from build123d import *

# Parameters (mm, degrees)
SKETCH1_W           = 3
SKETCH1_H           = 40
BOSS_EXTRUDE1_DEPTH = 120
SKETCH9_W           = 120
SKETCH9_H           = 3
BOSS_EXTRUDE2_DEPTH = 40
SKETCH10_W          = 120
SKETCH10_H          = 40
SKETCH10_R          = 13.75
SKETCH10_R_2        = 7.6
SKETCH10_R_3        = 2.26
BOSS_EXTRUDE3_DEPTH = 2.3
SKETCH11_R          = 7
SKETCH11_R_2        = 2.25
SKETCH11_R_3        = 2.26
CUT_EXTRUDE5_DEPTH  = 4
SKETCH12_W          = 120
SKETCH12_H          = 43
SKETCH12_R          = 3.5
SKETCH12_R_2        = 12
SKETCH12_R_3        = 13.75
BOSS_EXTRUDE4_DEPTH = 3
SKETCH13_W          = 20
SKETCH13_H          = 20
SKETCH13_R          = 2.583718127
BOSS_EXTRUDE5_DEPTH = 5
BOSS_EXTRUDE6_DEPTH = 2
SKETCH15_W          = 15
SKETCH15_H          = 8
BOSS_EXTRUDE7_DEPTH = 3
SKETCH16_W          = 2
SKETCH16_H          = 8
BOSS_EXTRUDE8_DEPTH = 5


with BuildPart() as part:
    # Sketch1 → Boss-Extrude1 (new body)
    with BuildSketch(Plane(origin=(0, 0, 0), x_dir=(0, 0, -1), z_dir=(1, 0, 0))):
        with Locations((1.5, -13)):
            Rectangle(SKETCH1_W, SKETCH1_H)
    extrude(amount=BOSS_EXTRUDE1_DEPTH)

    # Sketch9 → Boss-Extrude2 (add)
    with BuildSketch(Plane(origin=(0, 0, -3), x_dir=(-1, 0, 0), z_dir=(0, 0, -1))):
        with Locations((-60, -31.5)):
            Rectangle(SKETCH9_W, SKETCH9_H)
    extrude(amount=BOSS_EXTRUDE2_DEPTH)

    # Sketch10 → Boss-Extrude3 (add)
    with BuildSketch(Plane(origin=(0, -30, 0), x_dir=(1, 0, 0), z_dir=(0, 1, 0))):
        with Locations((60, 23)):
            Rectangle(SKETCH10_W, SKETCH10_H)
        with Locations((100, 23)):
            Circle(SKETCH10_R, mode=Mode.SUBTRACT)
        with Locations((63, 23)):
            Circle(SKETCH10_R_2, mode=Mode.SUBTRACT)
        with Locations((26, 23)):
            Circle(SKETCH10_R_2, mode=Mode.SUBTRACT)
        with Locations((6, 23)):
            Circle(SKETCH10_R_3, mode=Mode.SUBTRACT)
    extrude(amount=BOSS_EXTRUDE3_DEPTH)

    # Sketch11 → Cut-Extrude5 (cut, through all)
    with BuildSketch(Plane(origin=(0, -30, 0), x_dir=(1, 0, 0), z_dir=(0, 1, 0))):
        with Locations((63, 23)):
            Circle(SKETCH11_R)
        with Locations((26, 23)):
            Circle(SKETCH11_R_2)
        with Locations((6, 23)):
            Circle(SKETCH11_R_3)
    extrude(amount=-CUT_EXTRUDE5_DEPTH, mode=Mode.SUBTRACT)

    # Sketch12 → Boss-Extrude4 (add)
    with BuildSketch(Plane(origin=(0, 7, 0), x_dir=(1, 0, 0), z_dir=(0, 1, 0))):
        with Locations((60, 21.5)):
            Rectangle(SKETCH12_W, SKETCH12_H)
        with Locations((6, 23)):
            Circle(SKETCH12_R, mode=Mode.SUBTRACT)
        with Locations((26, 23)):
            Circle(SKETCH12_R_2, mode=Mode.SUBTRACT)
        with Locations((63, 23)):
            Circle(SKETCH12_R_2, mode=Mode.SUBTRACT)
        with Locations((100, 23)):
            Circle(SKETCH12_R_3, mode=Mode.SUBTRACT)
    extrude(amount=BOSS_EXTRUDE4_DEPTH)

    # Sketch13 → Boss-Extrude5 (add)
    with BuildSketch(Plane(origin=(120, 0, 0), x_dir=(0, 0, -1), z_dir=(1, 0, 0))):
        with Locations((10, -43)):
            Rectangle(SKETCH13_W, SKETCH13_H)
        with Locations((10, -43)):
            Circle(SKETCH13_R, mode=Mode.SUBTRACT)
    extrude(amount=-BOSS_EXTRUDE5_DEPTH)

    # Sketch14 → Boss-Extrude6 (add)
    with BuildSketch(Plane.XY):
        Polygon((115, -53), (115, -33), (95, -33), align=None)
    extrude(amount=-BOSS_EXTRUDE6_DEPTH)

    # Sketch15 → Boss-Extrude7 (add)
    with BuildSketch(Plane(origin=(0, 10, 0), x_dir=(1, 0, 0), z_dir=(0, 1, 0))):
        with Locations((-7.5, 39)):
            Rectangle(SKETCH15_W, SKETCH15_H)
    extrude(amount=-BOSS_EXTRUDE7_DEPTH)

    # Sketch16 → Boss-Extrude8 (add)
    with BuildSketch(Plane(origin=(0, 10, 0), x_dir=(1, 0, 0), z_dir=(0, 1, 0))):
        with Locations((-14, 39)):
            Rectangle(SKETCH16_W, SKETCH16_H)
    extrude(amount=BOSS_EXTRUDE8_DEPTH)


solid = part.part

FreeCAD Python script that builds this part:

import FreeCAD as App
import Part
import Sketcher
Q = App.Units.Quantity


def add_polygon(sketch, points):
    """Adds a closed chain of lines whose ends are joined by coincident constraints."""
    first, n = sketch.GeometryCount, len(points)
    for a, b in zip(points, points[1:] + points[:1]):
        sketch.addGeometry(Part.LineSegment(App.Vector(*a, 0), App.Vector(*b, 0)), False)
    for i in range(n):
        sketch.addConstraint(Sketcher.Constraint("Coincident", first + i, 2, first + (i + 1) % n, 1))

doc = App.newDocument("Part")
body = doc.addObject("PartDesign::Body", "Body")

sketch1 = body.newObject("Sketcher::SketchObject", "Sketch")
sketch1.AttachmentSupport = (doc.getObject("YZ_Plane"), [""])
sketch1.MapMode = "FlatFace"
add_polygon(sketch1, [(7, 0), (-33, 0), (-33, -3), (7, -3)])
sketch1.addConstraint([
    Sketcher.Constraint("Horizontal", 0),
    Sketcher.Constraint("Vertical", 1),
    Sketcher.Constraint("Horizontal", 2),
    Sketcher.Constraint("Vertical", 3),
    Sketcher.Constraint("PointOnObject", 0, 2, -1),
    Sketcher.Constraint("DistanceX", 0, 2, 0, 1, Q("40 mm")),
    Sketcher.Constraint("DistanceY", 1, 2, 1, 1, Q("3 mm")),
    Sketcher.Constraint("DistanceX", 0, 2, -1, 1, Q("33 mm")),
])
pad1 = body.newObject("PartDesign::Pad", "Pad")
pad1.Profile = sketch1
pad1.Length = 120

sketch2 = body.newObject("Sketcher::SketchObject", "Sketch001")
sketch2.AttachmentSupport = (doc.getObject("XY_Plane"), [""])
sketch2.MapMode = "FlatFace"
sketch2.AttachmentOffset = App.Placement(App.Vector(0, 0, -3), App.Rotation())
add_polygon(sketch2, [(120, -30), (120, -33), (0, -33), (0, -30)])
sketch2.addConstraint([
    Sketcher.Constraint("Vertical", 0),
    Sketcher.Constraint("Horizontal", 1),
    Sketcher.Constraint("Vertical", 2),
    Sketcher.Constraint("Horizontal", 3),
    Sketcher.Constraint("PointOnObject", 1, 2, -2),
    Sketcher.Constraint("DistanceX", 1, 2, 1, 1, Q("120 mm")),
    Sketcher.Constraint("DistanceY", 0, 2, 0, 1, Q("3 mm")),
    Sketcher.Constraint("DistanceY", 0, 2, -1, 1, Q("33 mm")),
])
pad2 = body.newObject("PartDesign::Pad", "Pad001")
pad2.Profile = sketch2
pad2.Length = 40
pad2.Reversed = True

sketch3 = body.newObject("Sketcher::SketchObject", "Sketch002")
sketch3.AttachmentSupport = (doc.getObject("XZ_Plane"), [""])
sketch3.MapMode = "FlatFace"
sketch3.AttachmentOffset = App.Placement(App.Vector(0, 0, 30), App.Rotation())
add_polygon(sketch3, [(0, -43), (0, -3), (120, -3), (120, -43)])
sketch3.addGeometry(Part.Circle(App.Vector(6, -23, 0), App.Vector(0, 0, 1), 2.3), False)
sketch3.addGeometry(Part.Circle(App.Vector(26, -23, 0), App.Vector(0, 0, 1), 7.6), False)
sketch3.addGeometry(Part.Circle(App.Vector(63, -23, 0), App.Vector(0, 0, 1), 7.6), False)
sketch3.addGeometry(Part.Circle(App.Vector(100, -23, 0), App.Vector(0, 0, 1), 13.8), False)
sketch3.addConstraint([
    Sketcher.Constraint("Vertical", 0),
    Sketcher.Constraint("Horizontal", 1),
    Sketcher.Constraint("Vertical", 2),
    Sketcher.Constraint("Horizontal", 3),
    Sketcher.Constraint("Equal", 5, 6),
    Sketcher.Constraint("PointOnObject", 0, 2, -2),
    Sketcher.Constraint("Horizontal", 4, 3, 5, 3),
    Sketcher.Constraint("Horizontal", 5, 3, 6, 3),
    Sketcher.Constraint("Horizontal", 6, 3, 7, 3),
    Sketcher.Constraint("Diameter", 5, Q("15.2 mm")),
    Sketcher.Constraint("Diameter", 7, Q("27.5 mm")),
    Sketcher.Constraint("Diameter", 4, Q("4.52 mm")),
    Sketcher.Constraint("DistanceX", 1, 1, 1, 2, Q("120 mm")),
    Sketcher.Constraint("DistanceY", 0, 1, 0, 2, Q("40 mm")),
    Sketcher.Constraint("DistanceX", -1, 1, 4, 3, Q("6 mm")),
    Sketcher.Constraint("DistanceY", 4, 3, -1, 1, Q("23 mm")),
    Sketcher.Constraint("DistanceX", -1, 1, 5, 3, Q("26 mm")),
    Sketcher.Constraint("DistanceX", -1, 1, 6, 3, Q("63 mm")),
    Sketcher.Constraint("DistanceX", -1, 1, 7, 3, Q("100 mm")),
    Sketcher.Constraint("DistanceY", 0, 2, -1, 1, Q("3 mm")),
])
pad3 = body.newObject("PartDesign::Pad", "Pad002")
pad3.Profile = sketch3
pad3.Length = 2.3
pad3.Reversed = True

sketch4 = body.newObject("Sketcher::SketchObject", "Sketch003")
sketch4.AttachmentSupport = (doc.getObject("XZ_Plane"), [""])
sketch4.MapMode = "FlatFace"
sketch4.AttachmentOffset = App.Placement(App.Vector(0, 0, 30), App.Rotation())
sketch4.addGeometry([
    Part.Circle(App.Vector(63, -23, 0), App.Vector(0, 0, 1), 7),
    Part.Circle(App.Vector(26, -23, 0), App.Vector(0, 0, 1), 2.2),
    Part.Circle(App.Vector(6, -23, 0), App.Vector(0, 0, 1), 2.3),
], False)
sketch4.addConstraint([
    Sketcher.Constraint("Horizontal", 0, 3, 1, 3),
    Sketcher.Constraint("Horizontal", 1, 3, 2, 3),
    Sketcher.Constraint("Diameter", 0, Q("14 mm")),
    Sketcher.Constraint("Diameter", 1, Q("4.5 mm")),
    Sketcher.Constraint("Diameter", 2, Q("4.52 mm")),
    Sketcher.Constraint("DistanceX", -1, 1, 0, 3, Q("63 mm")),
    Sketcher.Constraint("DistanceY", 0, 3, -1, 1, Q("23 mm")),
    Sketcher.Constraint("DistanceX", -1, 1, 1, 3, Q("26 mm")),
    Sketcher.Constraint("DistanceX", -1, 1, 2, 3, Q("6 mm")),
])
pocket1 = body.newObject("PartDesign::Pocket", "Pocket")
pocket1.Profile = sketch4
pocket1.Type = "ThroughAll"
pocket1.Reversed = True

sketch5 = body.newObject("Sketcher::SketchObject", "Sketch004")
sketch5.AttachmentSupport = (doc.getObject("XZ_Plane"), [""])
sketch5.MapMode = "FlatFace"
sketch5.AttachmentOffset = App.Placement(App.Vector(0, 0, -7), App.Rotation())
add_polygon(sketch5, [(0, -43), (0, 0), (120, 0), (120, -43)])
sketch5.addGeometry(Part.Circle(App.Vector(6, -23, 0), App.Vector(0, 0, 1), 3.5), False)
sketch5.addGeometry(Part.Circle(App.Vector(26, -23, 0), App.Vector(0, 0, 1), 12), False)
sketch5.addGeometry(Part.Circle(App.Vector(63, -23, 0), App.Vector(0, 0, 1), 12), False)
sketch5.addGeometry(Part.Circle(App.Vector(100, -23, 0), App.Vector(0, 0, 1), 13.8), False)
sketch5.addConstraint([
    Sketcher.Constraint("Vertical", 0),
    Sketcher.Constraint("Horizontal", 1),
    Sketcher.Constraint("Vertical", 2),
    Sketcher.Constraint("Horizontal", 3),
    Sketcher.Constraint("Coincident", 0, 2, -1, 1),
    Sketcher.Constraint("Equal", 5, 6),
    Sketcher.Constraint("Horizontal", 4, 3, 5, 3),
    Sketcher.Constraint("Horizontal", 5, 3, 6, 3),
    Sketcher.Constraint("Horizontal", 6, 3, 7, 3),
    Sketcher.Constraint("Diameter", 4, Q("7 mm")),
    Sketcher.Constraint("Diameter", 5, Q("24 mm")),
    Sketcher.Constraint("Diameter", 7, Q("27.5 mm")),
    Sketcher.Constraint("DistanceX", 1, 1, 1, 2, Q("120 mm")),
    Sketcher.Constraint("DistanceY", 0, 1, 0, 2, Q("43 mm")),
    Sketcher.Constraint("DistanceX", -1, 1, 4, 3, Q("6 mm")),
    Sketcher.Constraint("DistanceY", 4, 3, -1, 1, Q("23 mm")),
    Sketcher.Constraint("DistanceX", -1, 1, 5, 3, Q("26 mm")),
    Sketcher.Constraint("DistanceX", -1, 1, 6, 3, Q("63 mm")),
    Sketcher.Constraint("DistanceX", -1, 1, 7, 3, Q("100 mm")),
])
pad4 = body.newObject("PartDesign::Pad", "Pad003")
pad4.Profile = sketch5
pad4.Length = 3
pad4.Reversed = True

sketch6 = body.newObject("Sketcher::SketchObject", "Sketch005")
sketch6.AttachmentSupport = (doc.getObject("YZ_Plane"), [""])
sketch6.MapMode = "FlatFace"
sketch6.AttachmentOffset = App.Placement(App.Vector(0, 0, 120), App.Rotation())
add_polygon(sketch6, [(-33, 0), (-53, 0), (-53, -20), (-33, -20)])
sketch6.addGeometry(Part.Circle(App.Vector(-43, -10, 0), App.Vector(0, 0, 1), 2.6), False)
sketch6.addConstraint([
    Sketcher.Constraint("Horizontal", 0),
    Sketcher.Constraint("Vertical", 1),
    Sketcher.Constraint("Horizontal", 2),
    Sketcher.Constraint("Vertical", 3),
    Sketcher.Constraint("PointOnObject", 0, 2, -1),
    Sketcher.Constraint("Equal", 2, 1),
    Sketcher.Constraint("DistanceX", 0, 2, 0, 1, Q("20 mm")),
    Sketcher.Constraint("DistanceX", 4, 3, -1, 1, Q("43 mm")),
    Sketcher.Constraint("DistanceY", 4, 3, -1, 1, Q("10 mm")),
    Sketcher.Constraint("DistanceX", 0, 2, -1, 1, Q("53 mm")),
    Sketcher.Constraint("Diameter", 4, Q("5.167436 mm")),
])
pad5 = body.newObject("PartDesign::Pad", "Pad004")
pad5.Profile = sketch6
pad5.Length = 5
pad5.Reversed = True

sketch7 = body.newObject("Sketcher::SketchObject", "Sketch006")
sketch7.AttachmentSupport = (doc.getObject("XY_Plane"), [""])
sketch7.MapMode = "FlatFace"
add_polygon(sketch7, [(115, -53), (115, -33), (95, -33)])
sketch7.addConstraint([
    Sketcher.Constraint("Vertical", 0),
    Sketcher.Constraint("Horizontal", 1),
    Sketcher.Constraint("Equal", 1, 0),
    Sketcher.Constraint("DistanceX", 1, 2, 1, 1, Q("20 mm")),
    Sketcher.Constraint("DistanceX", -1, 1, 0, 2, Q("115 mm")),
    Sketcher.Constraint("DistanceY", 0, 2, -1, 1, Q("33 mm")),
])
pad6 = body.newObject("PartDesign::Pad", "Pad005")
pad6.Profile = sketch7
pad6.Length = 2
pad6.Reversed = True

sketch8 = body.newObject("Sketcher::SketchObject", "Sketch007")
sketch8.AttachmentSupport = (doc.getObject("XZ_Plane"), [""])
sketch8.MapMode = "FlatFace"
sketch8.AttachmentOffset = App.Placement(App.Vector(0, 0, -10), App.Rotation())
add_polygon(sketch8, [(-15, -43), (-15, -35), (0, -35), (0, -43)])
sketch8.addConstraint([
    Sketcher.Constraint("Vertical", 0),
    Sketcher.Constraint("Horizontal", 1),
    Sketcher.Constraint("Vertical", 2),
    Sketcher.Constraint("Horizontal", 3),
    Sketcher.Constraint("PointOnObject", 1, 2, -2),
    Sketcher.Constraint("DistanceX", 1, 1, 1, 2, Q("15 mm")),
    Sketcher.Constraint("DistanceY", 0, 1, 0, 2, Q("8 mm")),
    Sketcher.Constraint("DistanceY", 0, 2, -1, 1, Q("35 mm")),
])
pad7 = body.newObject("PartDesign::Pad", "Pad006")
pad7.Profile = sketch8
pad7.Length = 3

sketch9 = body.newObject("Sketcher::SketchObject", "Sketch008")
sketch9.AttachmentSupport = (doc.getObject("XZ_Plane"), [""])
sketch9.MapMode = "FlatFace"
sketch9.AttachmentOffset = App.Placement(App.Vector(0, 0, -10), App.Rotation())
add_polygon(sketch9, [(-15, -43), (-15, -35), (-13, -35), (-13, -43)])
sketch9.addConstraint([
    Sketcher.Constraint("Vertical", 0),
    Sketcher.Constraint("Horizontal", 1),
    Sketcher.Constraint("Vertical", 2),
    Sketcher.Constraint("Horizontal", 3),
    Sketcher.Constraint("DistanceX", 1, 1, 1, 2, Q("2 mm")),
    Sketcher.Constraint("DistanceY", 0, 1, 0, 2, Q("8 mm")),
    Sketcher.Constraint("DistanceX", 0, 2, -1, 1, Q("15 mm")),
    Sketcher.Constraint("DistanceY", 0, 2, -1, 1, Q("35 mm")),
])
pad8 = body.newObject("PartDesign::Pad", "Pad007")
pad8.Profile = sketch9
pad8.Length = 5
pad8.Reversed = True

doc.recompute()
